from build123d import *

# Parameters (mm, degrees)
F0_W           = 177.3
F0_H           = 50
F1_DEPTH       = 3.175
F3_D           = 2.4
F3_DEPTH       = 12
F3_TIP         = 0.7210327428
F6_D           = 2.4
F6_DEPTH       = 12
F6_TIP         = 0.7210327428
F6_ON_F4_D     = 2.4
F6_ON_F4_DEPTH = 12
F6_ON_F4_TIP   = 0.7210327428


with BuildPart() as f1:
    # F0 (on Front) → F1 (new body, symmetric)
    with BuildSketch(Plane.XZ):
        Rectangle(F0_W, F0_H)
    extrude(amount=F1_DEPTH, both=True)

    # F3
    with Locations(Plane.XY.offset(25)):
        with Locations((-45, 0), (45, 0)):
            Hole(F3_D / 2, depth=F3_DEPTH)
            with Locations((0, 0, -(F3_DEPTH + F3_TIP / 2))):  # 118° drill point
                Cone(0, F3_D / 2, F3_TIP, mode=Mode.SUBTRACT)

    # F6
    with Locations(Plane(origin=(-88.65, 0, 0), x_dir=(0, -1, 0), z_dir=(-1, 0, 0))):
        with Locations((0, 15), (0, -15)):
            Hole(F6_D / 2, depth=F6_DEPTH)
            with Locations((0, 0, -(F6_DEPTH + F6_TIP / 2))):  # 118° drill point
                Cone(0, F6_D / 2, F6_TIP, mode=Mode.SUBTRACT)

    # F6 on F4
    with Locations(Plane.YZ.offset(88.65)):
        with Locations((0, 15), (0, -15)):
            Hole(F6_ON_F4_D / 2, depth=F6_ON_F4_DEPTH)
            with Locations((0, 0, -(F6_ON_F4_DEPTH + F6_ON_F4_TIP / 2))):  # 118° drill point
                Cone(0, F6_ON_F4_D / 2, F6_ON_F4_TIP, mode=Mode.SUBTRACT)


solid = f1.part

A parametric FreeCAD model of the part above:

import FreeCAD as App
import Part
import Sketcher
from FreeCAD import Vector

doc = App.newDocument("Part")
params = doc.addObject("Spreadsheet::Sheet", "Params")
for row, (alias, value) in enumerate([
    ("sketch1_height", "50 mm"),
    ("sketch1_width", "177.3 mm"),
    ("pad1_length", "6.35 mm"),
    ("sketch2_diameter", "2.4 mm"),
    ("hole_diameter", "2.4 mm"),
    ("hole_depth", "12 mm"),
    ("sketch3_diameter", "2.4 mm"),
    ("hole2_diameter", "2.4 mm"),
    ("hole2_depth", "12 mm"),
    ("sketch4_diameter", "2.4 mm"),
    ("hole3_diameter", "2.4 mm"),
    ("hole3_depth", "12 mm"),
], start=1):
    params.set(f"A{row}", alias)
    params.set(f"B{row}", "=" + value)
    params.setAlias(f"B{row}", alias)

body = doc.addObject("PartDesign::Body", "Body")

# Sketch on XZ plane
sketch1 = body.newObject("Sketcher::SketchObject", "Sketch")
sketch1.AttachmentSupport = (doc.getObject("XZ_Plane"), [""])
sketch1.MapMode = "FlatFace"
sketch1.addGeometry(Part.LineSegment(Vector(-89, 25, 0), Vector(-89, -25, 0)), False)
sketch1.addGeometry(Part.LineSegment(Vector(-89, -25, 0), Vector(89, -25, 0)), False)
sketch1.addGeometry(Part.LineSegment(Vector(89, -25, 0), Vector(89, 25, 0)), False)
sketch1.addGeometry(Part.LineSegment(Vector(89, 25, 0), Vector(-89, 25, 0)), False)
sketch1.addConstraint(Sketcher.Constraint("Coincident", 0, 2, 1, 1))
sketch1.addConstraint(Sketcher.Constraint("Coincident", 1, 2, 2, 1))
sketch1.addConstraint(Sketcher.Constraint("Coincident", 2, 2, 3, 1))
sketch1.addConstraint(Sketcher.Constraint("Coincident", 3, 2, 0, 1))
sketch1.addConstraint(Sketcher.Constraint("Vertical", 0))
sketch1.addConstraint(Sketcher.Constraint("Horizontal", 1))
sketch1.addConstraint(Sketcher.Constraint("Vertical", 2))
sketch1.addConstraint(Sketcher.Constraint("Horizontal", 3))
sketch1.addConstraint(Sketcher.Constraint("Symmetric", 0, 2, 2, 2, -1, 1))
sketch1.addConstraint(Sketcher.Constraint("DistanceY", 0, 2, 0, 1, 50.0))
sketch1.addConstraint(Sketcher.Constraint("DistanceX", 1, 1, 1, 2, 177.3))
sketch1.setExpression("Constraints[9]", "Params.sketch1_height")
sketch1.setExpression("Constraints[10]", "Params.sketch1_width")
pad1 = body.newObject("PartDesign::Pad", "Pad")
pad1.Profile = sketch1
pad1.setExpression("Length", "Params.pad1_length")
pad1.Midplane = True

# Sketch on XY plane
sketch2 = body.newObject("Sketcher::SketchObject", "Sketch001")
sketch2.AttachmentSupport = (doc.getObject("XY_Plane"), [""])
sketch2.MapMode = "FlatFace"
sketch2.AttachmentOffset = App.Placement(Vector(0, 0, 25), App.Rotation())
sketch2.addGeometry(Part.Circle(Vector(-45, 0, 0), Vector(0, 0, 1), 1.2), False)
sketch2.addGeometry(Part.Circle(Vector(45, 0, 0), Vector(0, 0, 1), 1.2), False)
sketch2.addConstraint(Sketcher.Constraint("Equal", 0, 1))
sketch2.addConstraint(Sketcher.Constraint("Symmetric", 0, 3, 1, 3, -1, 1))
sketch2.addConstraint(Sketcher.Constraint("PointOnObject", 0, 3, -1))
sketch2.addConstraint(Sketcher.Constraint("Diameter", 0, 2.4))
sketch2.addConstraint(Sketcher.Constraint("DistanceX", 0, 3, -1, 1, 45.0))
sketch2.setExpression("Constraints[3]", "Params.sketch2_diameter")
doc.recompute()
hole = body.newObject("PartDesign::Hole", "Hole")
hole.Profile = sketch2
hole.ThreadType = "None"
hole.setExpression("Diameter", "Params.hole_diameter")
hole.DepthType = "Dimension"
hole.setExpression("Depth", "Params.hole_depth")
hole.DrillPoint = "Angled"
hole.DrillPointAngle = 118

# Sketch on YZ plane
sketch3 = body.newObject("Sketcher::SketchObject", "Sketch002")
sketch3.AttachmentSupport = (doc.getObject("YZ_Plane"), [""])
sketch3.MapMode = "FlatFace"
sketch3.AttachmentOffset = App.Placement(Vector(0, 0, -88.65), App.Rotation())
sketch3.addGeometry(Part.Circle(Vector(0, 15, 0), Vector(0, 0, 1), 1.2), False)
sketch3.addGeometry(Part.Circle(Vector(0, -15, 0), Vector(0, 0, 1), 1.2), False)
sketch3.addConstraint(Sketcher.Constraint("Equal", 0, 1))
sketch3.addConstraint(Sketcher.Constraint("Symmetric", 0, 3, 1, 3, -1, 1))
sketch3.addConstraint(Sketcher.Constraint("PointOnObject", 0, 3, -2))
sketch3.addConstraint(Sketcher.Constraint("Diameter", 0, 2.4))
sketch3.addConstraint(Sketcher.Constraint("DistanceY", -1, 1, 0, 3, 15.0))
sketch3.setExpression("Constraints[3]", "Params.sketch3_diameter")
doc.recompute()
hole2 = body.newObject("PartDesign::Hole", "Hole001")
hole2.Profile = sketch3
hole2.ThreadType = "None"
hole2.setExpression("Diameter", "Params.hole2_diameter")
hole2.DepthType = "Dimension"
hole2.setExpression("Depth", "Params.hole2_depth")
hole2.DrillPoint = "Angled"
hole2.DrillPointAngle = 118
hole2.Reversed = True

# Sketch on YZ plane
sketch4 = body.newObject("Sketcher::SketchObject", "Sketch003")
sketch4.AttachmentSupport = (doc.getObject("YZ_Plane"), [""])
sketch4.MapMode = "FlatFace"
sketch4.AttachmentOffset = App.Placement(Vector(0, 0, 88.65), App.Rotation())
sketch4.addGeometry(Part.Circle(Vector(0, 15, 0), Vector(0, 0, 1), 1.2), False)
sketch4.addGeometry(Part.Circle(Vector(0, -15, 0), Vector(0, 0, 1), 1.2), False)
sketch4.addConstraint(Sketcher.Constraint("Equal", 0, 1))
sketch4.addConstraint(Sketcher.Constraint("Symmetric", 0, 3, 1, 3, -1, 1))
sketch4.addConstraint(Sketcher.Constraint("PointOnObject", 0, 3, -2))
sketch4.addConstraint(Sketcher.Constraint("Diameter", 0, 2.4))
sketch4.addConstraint(Sketcher.Constraint("DistanceY", -1, 1, 0, 3, 15.0))
sketch4.setExpression("Constraints[3]", "Params.sketch4_diameter")
doc.recompute()
hole3 = body.newObject("PartDesign::Hole", "Hole002")
hole3.Profile = sketch4
hole3.ThreadType = "None"
hole3.setExpression("Diameter", "Params.hole3_diameter")
hole3.DepthType = "Dimension"
hole3.setExpression("Depth", "Params.hole3_depth")
hole3.DrillPoint = "Angled"
hole3.DrillPointAngle = 118

doc.recompute()
